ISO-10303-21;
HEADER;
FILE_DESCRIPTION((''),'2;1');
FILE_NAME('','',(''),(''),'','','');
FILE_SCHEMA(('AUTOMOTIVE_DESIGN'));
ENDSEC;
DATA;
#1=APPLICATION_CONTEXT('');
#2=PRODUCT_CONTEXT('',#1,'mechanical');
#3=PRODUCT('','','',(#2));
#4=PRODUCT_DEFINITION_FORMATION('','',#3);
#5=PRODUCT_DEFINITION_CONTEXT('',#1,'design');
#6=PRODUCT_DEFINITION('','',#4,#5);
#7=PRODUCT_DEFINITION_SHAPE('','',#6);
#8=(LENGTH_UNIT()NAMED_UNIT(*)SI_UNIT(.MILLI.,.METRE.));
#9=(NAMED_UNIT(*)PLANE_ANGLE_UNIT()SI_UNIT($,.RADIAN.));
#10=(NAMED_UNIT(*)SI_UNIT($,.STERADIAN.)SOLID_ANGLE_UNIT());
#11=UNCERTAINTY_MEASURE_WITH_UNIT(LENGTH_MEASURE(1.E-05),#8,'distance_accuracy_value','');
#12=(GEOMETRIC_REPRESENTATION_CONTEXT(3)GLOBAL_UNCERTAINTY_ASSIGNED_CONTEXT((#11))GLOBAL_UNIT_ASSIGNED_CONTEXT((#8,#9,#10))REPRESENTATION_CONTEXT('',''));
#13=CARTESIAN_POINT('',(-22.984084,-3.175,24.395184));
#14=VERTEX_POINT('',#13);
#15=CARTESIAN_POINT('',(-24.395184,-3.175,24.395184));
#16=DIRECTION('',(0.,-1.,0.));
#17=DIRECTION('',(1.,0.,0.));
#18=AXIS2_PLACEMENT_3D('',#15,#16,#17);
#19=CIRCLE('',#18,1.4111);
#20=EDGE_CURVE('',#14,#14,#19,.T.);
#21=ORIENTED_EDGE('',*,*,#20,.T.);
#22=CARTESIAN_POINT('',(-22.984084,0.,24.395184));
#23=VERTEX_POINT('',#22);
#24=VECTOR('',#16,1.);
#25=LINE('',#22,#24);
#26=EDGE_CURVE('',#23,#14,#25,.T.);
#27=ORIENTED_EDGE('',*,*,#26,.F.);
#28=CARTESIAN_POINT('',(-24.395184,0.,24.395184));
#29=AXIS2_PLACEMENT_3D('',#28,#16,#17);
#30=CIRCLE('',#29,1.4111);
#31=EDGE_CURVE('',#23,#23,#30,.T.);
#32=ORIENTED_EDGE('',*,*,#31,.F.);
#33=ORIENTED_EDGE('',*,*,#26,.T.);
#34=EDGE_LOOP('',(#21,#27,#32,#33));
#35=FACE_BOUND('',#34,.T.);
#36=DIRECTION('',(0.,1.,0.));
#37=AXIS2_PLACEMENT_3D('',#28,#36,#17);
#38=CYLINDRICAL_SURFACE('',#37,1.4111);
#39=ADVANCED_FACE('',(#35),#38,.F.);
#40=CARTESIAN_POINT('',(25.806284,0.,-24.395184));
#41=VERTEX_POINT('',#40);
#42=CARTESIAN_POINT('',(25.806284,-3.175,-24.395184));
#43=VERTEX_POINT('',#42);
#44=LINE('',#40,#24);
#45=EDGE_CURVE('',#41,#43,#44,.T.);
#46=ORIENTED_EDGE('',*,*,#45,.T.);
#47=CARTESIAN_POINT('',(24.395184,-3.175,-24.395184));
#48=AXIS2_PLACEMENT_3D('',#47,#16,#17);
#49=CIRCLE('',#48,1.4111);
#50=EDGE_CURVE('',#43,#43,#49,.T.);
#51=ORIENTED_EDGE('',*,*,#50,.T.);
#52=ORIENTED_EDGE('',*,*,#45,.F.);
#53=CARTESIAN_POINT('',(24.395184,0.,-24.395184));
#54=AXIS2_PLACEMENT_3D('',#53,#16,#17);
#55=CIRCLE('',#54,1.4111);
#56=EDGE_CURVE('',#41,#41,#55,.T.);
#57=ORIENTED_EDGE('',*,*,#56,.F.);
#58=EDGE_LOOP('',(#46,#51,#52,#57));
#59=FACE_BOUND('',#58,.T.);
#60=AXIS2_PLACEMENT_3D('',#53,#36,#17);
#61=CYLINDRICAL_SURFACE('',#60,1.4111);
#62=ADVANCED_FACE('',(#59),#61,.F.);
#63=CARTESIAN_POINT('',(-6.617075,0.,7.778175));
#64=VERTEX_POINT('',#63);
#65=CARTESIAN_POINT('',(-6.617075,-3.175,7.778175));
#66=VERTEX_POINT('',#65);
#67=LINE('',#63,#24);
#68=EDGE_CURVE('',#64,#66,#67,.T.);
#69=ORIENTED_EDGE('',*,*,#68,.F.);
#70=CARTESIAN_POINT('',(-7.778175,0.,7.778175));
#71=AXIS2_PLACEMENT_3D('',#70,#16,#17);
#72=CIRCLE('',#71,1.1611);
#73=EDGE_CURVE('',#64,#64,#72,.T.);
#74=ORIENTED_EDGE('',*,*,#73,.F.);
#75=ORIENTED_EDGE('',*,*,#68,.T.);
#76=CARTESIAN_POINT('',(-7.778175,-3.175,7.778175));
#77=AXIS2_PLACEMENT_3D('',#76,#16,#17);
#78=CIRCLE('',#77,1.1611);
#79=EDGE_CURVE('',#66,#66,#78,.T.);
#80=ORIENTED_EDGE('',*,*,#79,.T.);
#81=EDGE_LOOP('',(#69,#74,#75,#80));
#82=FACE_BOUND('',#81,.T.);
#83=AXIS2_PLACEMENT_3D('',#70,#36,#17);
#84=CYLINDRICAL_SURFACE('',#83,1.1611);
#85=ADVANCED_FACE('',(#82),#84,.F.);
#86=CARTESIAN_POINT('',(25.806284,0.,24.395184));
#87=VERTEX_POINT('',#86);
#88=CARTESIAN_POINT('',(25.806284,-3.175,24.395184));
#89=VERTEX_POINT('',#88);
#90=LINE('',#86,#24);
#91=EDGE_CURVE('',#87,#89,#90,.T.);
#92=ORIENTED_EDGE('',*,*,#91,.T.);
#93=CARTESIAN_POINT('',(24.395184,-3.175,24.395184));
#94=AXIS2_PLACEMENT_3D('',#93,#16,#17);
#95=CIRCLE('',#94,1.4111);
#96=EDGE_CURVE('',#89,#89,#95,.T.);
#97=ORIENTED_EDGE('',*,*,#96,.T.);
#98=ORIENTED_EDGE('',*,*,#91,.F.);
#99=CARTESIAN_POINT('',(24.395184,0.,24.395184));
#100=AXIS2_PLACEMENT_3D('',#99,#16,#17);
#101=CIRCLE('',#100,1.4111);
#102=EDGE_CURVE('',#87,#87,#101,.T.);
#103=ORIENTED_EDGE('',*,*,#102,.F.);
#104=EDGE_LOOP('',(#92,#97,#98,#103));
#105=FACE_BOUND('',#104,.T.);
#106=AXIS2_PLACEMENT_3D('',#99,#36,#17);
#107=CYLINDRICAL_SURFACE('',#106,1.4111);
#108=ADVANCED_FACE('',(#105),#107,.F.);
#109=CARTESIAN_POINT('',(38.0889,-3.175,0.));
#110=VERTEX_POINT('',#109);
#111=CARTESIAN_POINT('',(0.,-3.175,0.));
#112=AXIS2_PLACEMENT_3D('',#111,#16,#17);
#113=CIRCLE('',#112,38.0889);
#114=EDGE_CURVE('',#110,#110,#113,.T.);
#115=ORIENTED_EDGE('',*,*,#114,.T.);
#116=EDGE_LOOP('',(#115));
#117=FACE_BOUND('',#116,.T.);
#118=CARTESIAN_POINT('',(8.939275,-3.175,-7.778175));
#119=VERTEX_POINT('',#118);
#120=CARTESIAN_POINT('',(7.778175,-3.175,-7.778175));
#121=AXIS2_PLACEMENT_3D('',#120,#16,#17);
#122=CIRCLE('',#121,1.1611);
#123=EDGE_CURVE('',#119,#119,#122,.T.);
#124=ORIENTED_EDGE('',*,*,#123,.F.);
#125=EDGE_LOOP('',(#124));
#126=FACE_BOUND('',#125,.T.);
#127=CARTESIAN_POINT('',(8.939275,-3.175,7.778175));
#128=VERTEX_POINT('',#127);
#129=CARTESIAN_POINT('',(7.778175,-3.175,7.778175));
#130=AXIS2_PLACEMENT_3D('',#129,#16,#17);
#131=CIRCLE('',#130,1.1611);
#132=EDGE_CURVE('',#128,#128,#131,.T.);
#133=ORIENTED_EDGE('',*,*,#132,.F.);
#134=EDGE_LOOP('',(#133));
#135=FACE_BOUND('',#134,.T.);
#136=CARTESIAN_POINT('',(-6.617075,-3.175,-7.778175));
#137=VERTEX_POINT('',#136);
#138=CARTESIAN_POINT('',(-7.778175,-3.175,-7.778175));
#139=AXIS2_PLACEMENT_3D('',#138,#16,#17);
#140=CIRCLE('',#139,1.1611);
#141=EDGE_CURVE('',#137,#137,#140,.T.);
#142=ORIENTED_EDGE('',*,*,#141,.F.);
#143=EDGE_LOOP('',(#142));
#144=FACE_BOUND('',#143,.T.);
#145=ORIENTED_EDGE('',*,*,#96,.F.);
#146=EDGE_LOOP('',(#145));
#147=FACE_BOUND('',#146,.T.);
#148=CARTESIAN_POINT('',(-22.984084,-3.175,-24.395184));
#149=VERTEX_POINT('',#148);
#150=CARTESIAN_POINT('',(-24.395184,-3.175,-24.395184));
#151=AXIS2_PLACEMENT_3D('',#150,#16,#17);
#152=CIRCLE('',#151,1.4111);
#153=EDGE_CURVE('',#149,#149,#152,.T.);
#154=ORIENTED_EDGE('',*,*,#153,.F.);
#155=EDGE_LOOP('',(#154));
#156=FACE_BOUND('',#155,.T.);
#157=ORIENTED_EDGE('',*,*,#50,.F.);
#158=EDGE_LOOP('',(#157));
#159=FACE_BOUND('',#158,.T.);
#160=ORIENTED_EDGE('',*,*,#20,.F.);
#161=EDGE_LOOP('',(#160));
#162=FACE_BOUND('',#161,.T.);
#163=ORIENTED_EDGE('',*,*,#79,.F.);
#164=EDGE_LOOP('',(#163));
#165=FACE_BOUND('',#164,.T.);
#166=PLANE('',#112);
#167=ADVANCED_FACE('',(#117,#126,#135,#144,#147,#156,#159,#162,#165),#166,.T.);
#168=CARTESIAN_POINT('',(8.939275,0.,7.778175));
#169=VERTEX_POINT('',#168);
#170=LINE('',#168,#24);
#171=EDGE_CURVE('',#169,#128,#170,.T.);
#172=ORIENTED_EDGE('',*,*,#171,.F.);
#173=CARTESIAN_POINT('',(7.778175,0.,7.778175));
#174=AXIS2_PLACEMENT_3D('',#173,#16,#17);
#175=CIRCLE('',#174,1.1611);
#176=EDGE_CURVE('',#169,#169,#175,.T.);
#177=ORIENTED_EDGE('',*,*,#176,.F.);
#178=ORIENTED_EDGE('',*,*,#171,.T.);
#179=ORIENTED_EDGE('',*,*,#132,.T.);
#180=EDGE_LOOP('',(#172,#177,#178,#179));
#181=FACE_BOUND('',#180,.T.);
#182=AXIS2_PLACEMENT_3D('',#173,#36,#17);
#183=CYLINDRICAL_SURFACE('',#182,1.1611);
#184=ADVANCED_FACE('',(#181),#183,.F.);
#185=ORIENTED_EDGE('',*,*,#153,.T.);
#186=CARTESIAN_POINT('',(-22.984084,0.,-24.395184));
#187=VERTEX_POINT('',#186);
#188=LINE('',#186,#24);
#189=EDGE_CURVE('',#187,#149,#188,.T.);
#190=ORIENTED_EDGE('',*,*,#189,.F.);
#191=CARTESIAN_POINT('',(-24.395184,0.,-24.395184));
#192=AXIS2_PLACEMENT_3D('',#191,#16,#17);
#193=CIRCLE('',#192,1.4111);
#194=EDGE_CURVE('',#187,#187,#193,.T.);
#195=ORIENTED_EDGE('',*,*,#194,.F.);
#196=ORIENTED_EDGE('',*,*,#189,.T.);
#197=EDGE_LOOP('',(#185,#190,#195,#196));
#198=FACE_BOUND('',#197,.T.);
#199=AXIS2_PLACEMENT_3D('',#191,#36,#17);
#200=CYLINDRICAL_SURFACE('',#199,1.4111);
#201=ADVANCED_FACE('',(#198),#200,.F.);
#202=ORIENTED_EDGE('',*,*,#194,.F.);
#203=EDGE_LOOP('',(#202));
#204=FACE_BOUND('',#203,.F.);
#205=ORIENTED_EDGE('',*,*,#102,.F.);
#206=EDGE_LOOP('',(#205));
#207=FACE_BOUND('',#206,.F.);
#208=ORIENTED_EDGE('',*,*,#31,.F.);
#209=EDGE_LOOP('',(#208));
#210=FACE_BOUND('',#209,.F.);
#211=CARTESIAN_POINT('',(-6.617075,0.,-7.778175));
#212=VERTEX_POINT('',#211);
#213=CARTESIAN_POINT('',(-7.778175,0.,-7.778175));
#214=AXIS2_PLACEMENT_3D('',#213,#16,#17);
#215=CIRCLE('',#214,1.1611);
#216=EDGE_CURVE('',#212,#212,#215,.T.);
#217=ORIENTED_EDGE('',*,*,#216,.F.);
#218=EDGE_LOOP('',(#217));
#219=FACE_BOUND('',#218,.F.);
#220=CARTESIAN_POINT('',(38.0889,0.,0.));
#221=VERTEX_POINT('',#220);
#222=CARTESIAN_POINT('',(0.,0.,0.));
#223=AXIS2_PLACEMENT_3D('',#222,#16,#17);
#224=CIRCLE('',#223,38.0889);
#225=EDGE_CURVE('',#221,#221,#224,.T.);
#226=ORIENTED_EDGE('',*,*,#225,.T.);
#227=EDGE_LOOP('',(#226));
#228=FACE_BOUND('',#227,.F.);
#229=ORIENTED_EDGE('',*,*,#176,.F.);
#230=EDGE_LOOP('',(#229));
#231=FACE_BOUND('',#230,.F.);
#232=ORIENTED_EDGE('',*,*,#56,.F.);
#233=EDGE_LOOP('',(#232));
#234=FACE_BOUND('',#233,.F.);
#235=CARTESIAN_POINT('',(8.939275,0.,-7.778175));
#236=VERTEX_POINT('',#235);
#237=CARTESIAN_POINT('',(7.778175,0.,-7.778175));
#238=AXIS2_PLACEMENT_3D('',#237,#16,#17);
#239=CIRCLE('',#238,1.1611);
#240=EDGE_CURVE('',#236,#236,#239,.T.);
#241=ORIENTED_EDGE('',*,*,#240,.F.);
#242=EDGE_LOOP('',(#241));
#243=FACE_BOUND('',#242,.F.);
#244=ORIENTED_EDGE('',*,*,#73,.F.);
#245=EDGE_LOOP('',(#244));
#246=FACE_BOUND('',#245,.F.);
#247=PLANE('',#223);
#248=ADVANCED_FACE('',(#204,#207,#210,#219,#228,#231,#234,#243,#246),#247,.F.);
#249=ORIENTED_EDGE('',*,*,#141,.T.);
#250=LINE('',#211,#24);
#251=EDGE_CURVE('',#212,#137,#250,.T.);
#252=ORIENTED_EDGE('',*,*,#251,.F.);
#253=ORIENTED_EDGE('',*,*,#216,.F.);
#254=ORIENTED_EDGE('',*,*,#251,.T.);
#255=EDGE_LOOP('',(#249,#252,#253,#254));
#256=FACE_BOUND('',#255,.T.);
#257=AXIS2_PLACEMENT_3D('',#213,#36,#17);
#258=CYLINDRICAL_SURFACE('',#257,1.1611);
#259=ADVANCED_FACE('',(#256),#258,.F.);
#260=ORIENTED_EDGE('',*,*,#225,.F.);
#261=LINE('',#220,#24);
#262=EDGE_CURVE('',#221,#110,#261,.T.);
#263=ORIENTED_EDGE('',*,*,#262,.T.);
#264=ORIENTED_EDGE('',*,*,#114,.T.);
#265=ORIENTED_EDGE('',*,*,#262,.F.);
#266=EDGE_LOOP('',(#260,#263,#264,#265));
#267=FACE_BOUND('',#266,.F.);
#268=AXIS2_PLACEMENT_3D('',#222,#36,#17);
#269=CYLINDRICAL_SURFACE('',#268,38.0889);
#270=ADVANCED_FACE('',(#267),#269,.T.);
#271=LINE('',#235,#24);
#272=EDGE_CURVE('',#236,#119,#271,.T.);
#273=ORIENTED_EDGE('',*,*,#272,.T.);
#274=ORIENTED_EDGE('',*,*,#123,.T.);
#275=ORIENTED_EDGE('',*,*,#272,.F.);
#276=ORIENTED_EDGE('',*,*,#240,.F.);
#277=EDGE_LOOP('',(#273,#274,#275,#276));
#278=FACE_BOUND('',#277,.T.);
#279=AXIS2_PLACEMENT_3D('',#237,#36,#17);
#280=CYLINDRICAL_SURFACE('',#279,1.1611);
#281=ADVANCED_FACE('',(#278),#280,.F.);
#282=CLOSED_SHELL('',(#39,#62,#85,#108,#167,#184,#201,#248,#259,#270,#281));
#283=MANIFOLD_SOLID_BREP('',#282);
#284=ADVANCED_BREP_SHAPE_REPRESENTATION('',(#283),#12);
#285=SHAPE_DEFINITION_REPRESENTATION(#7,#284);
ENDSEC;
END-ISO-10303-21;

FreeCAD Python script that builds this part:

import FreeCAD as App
import Part
import Sketcher
from FreeCAD import Vector
Q = App.Units.Quantity

doc = App.newDocument("Part")
body = doc.addObject("PartDesign::Body", "Body")

sketch1 = body.newObject("Sketcher::SketchObject", "Sketch")
sketch1.AttachmentSupport = (doc.getObject("XZ_Plane"), [""])
sketch1.MapMode = "FlatFace"
sketch1.addGeometry([
    Part.Circle(Vector(0, 0, 0), Vector(0, 0, 1), 38.0889),
    Part.Circle(Vector(-24.395184, -24.395184, 0), Vector(0, 0, 1), 1.4111),
    Part.Circle(Vector(-7.778175, -7.778175, 0), Vector(0, 0, 1), 1.1611),
    Part.Circle(Vector(24.395184, -24.395184, 0), Vector(0, 0, 1), 1.4111),
    Part.Circle(Vector(7.778175, -7.778175, 0), Vector(0, 0, 1), 1.1611),
    Part.Circle(Vector(-7.778175, 7.778175, 0), Vector(0, 0, 1), 1.1611),
    Part.Circle(Vector(-24.395184, 24.395184, 0), Vector(0, 0, 1), 1.4111),
    Part.Circle(Vector(7.778175, 7.778175, 0), Vector(0, 0, 1), 1.1611),
    Part.Circle(Vector(24.395184, 24.395184, 0), Vector(0, 0, 1), 1.4111),
], False)
sketch1.addConstraint([
    Sketcher.Constraint("Coincident", 0, 3, -1, 1),
    Sketcher.Constraint("Equal", 1, 3),
    Sketcher.Constraint("Equal", 2, 4),
    Sketcher.Constraint("Equal", 4, 5),
    Sketcher.Constraint("Equal", 3, 6),
    Sketcher.Constraint("Equal", 5, 7),
    Sketcher.Constraint("Equal", 6, 8),
    Sketcher.Constraint("Symmetric", 4, 3, 5, 3, -1, 1),
    Sketcher.Constraint("Symmetric", 3, 3, 6, 3, -1, 1),
    Sketcher.Constraint("Symmetric", 2, 3, 7, 3, -1, 1),
    Sketcher.Constraint("Symmetric", 1, 3, 8, 3, -1, 1),
    Sketcher.Constraint("Symmetric", 1, 3, 3, 3, -2),
    Sketcher.Constraint("Symmetric", 2, 3, 4, 3, -2),
    Sketcher.Constraint("Diameter", 0, 76.1778),
    Sketcher.Constraint("Diameter", 1, 2.8222),
    Sketcher.Constraint("Diameter", 2, 2.3222),
    Sketcher.Constraint("DistanceX", 1, 3, 2, 3, 16.617009),
    Sketcher.Constraint("DistanceY", 1, 3, 2, 3, 16.617009),
    Sketcher.Constraint("DistanceX", 2, 3, 3, 3, 32.173359),
    Sketcher.Constraint("DistanceY", 2, 3, 5, 3, 15.55635),
])
pad1 = body.newObject("PartDesign::Pad", "Pad")
pad1.Profile = sketch1
pad1.Length = Q("0.125 in")

doc.recompute()
